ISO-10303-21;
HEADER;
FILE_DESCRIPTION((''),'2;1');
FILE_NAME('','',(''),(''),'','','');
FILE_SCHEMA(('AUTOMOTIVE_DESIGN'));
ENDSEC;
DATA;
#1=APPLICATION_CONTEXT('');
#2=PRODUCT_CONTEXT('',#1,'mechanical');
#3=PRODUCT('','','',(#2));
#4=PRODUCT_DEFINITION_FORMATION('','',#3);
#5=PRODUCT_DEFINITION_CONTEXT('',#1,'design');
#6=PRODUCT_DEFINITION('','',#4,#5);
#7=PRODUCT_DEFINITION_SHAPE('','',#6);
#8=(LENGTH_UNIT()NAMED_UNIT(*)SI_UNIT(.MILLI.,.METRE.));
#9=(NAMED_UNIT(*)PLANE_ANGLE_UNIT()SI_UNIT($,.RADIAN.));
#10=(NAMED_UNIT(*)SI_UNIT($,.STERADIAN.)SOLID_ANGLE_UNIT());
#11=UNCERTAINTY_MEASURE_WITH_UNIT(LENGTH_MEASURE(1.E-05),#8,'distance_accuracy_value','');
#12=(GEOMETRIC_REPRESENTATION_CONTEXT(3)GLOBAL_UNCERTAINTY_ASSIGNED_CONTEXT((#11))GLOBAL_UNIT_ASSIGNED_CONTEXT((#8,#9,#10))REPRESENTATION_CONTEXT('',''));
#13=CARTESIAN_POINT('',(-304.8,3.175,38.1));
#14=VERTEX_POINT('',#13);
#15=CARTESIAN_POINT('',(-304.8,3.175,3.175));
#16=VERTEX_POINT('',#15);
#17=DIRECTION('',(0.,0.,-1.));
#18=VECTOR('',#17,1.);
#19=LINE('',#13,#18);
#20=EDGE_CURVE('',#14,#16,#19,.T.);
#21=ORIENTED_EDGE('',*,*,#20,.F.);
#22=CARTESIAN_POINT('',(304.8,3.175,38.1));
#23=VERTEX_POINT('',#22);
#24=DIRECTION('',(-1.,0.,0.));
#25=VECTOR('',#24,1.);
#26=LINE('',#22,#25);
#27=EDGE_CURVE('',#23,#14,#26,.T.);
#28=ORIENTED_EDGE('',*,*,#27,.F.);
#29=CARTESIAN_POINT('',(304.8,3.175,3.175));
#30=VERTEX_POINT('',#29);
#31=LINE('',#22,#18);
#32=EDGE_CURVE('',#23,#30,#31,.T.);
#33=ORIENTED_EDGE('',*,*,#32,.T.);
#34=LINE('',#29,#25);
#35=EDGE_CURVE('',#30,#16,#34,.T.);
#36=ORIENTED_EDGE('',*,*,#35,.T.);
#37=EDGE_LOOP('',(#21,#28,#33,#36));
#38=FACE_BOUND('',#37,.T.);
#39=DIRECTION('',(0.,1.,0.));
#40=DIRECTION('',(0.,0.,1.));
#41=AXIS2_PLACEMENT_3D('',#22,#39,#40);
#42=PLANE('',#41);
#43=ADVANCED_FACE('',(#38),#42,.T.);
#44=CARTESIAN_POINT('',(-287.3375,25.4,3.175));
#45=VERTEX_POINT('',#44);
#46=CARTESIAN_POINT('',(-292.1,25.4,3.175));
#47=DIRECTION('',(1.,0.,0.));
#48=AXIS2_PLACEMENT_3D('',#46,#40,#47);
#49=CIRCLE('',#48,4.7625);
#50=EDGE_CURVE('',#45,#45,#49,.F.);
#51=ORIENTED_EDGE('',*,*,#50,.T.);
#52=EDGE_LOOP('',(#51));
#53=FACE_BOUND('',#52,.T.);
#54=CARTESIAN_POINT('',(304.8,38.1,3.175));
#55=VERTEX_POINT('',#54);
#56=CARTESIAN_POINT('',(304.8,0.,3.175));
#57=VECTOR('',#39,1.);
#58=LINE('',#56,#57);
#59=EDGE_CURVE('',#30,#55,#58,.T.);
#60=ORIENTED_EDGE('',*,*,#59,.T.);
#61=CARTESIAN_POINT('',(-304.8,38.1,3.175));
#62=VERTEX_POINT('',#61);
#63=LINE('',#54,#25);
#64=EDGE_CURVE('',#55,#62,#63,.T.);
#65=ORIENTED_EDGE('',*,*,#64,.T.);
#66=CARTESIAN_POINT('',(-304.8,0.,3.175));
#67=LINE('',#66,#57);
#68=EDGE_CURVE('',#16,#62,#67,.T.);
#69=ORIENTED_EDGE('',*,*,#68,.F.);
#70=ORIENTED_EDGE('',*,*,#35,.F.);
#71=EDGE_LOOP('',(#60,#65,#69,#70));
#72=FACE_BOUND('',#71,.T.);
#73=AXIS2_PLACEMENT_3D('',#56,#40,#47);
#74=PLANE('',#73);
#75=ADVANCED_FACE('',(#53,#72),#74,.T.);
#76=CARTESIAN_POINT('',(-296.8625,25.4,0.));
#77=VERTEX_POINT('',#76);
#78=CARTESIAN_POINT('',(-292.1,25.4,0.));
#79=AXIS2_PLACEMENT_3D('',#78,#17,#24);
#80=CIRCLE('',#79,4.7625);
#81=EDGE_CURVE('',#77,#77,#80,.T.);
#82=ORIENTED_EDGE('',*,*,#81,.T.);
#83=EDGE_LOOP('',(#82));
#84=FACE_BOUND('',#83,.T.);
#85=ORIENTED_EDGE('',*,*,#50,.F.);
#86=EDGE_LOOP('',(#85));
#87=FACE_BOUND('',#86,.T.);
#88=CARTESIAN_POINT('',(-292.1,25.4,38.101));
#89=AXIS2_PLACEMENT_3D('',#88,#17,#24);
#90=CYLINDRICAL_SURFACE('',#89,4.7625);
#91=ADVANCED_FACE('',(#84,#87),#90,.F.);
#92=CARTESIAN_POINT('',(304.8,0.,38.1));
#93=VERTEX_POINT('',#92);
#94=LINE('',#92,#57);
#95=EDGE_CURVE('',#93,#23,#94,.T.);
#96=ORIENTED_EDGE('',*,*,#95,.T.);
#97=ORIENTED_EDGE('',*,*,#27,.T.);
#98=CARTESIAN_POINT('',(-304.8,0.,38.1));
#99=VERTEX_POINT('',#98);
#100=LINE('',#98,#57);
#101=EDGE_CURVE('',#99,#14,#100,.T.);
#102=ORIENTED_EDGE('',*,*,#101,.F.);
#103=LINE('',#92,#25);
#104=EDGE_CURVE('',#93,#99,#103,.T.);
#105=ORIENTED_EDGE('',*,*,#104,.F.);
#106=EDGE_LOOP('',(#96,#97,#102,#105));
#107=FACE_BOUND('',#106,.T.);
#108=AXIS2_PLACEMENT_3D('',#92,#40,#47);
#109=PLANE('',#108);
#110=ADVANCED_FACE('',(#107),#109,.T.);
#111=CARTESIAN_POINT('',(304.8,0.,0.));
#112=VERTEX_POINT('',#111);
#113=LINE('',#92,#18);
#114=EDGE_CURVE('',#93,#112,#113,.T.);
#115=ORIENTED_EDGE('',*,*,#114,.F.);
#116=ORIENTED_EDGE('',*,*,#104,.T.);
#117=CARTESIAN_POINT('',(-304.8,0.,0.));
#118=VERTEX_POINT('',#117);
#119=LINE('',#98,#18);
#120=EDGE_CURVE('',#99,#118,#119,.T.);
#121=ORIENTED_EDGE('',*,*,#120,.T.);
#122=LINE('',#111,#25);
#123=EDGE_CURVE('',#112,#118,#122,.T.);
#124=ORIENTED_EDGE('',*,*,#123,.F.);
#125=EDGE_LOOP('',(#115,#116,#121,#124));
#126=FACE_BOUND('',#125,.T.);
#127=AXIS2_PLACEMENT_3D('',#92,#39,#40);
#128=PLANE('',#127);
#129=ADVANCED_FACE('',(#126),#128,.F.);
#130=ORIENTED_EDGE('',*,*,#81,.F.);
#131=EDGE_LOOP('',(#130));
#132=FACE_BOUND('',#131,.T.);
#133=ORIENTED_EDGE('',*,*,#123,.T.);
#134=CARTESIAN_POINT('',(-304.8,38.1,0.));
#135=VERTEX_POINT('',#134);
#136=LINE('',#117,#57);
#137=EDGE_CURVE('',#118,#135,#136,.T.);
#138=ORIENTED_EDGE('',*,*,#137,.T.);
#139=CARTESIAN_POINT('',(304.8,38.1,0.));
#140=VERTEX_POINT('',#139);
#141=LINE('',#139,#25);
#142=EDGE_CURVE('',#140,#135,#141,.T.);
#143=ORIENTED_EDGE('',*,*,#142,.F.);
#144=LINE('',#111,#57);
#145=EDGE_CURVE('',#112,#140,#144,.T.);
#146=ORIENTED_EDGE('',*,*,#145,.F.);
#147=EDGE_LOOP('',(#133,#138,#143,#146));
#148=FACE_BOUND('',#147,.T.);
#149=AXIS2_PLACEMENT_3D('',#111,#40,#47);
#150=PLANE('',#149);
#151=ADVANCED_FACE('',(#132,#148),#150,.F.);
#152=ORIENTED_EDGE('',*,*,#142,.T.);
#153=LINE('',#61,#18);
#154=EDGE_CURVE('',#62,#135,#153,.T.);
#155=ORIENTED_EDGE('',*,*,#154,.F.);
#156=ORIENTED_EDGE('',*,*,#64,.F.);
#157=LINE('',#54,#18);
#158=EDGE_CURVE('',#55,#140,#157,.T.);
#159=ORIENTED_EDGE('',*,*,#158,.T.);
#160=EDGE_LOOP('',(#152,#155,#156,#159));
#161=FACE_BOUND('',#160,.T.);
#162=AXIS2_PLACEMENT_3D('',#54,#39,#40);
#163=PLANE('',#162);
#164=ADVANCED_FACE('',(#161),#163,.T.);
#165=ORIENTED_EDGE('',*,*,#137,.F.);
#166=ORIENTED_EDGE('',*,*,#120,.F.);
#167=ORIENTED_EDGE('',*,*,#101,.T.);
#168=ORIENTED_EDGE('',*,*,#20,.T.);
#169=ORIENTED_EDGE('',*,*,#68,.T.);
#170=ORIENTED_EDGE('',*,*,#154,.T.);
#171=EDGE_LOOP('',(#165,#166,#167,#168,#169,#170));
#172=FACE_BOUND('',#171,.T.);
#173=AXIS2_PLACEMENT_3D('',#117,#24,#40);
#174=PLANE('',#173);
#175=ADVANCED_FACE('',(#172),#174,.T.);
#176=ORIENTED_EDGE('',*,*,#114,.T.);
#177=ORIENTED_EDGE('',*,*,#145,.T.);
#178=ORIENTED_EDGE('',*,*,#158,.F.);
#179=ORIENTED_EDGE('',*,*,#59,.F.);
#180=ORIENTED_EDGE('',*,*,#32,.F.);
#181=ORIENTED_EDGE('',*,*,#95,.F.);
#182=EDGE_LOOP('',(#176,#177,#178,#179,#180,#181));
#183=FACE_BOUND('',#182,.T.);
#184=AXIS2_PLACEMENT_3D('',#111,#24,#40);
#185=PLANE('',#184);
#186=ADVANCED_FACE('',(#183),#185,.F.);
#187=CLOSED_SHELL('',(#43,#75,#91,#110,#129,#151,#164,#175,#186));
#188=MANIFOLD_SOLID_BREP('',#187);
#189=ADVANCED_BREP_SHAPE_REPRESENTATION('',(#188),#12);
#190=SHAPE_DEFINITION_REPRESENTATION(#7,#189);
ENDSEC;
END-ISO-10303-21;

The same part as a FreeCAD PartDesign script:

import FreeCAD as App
import Part
import Sketcher

V = App.Vector
Q = App.Units.Quantity


def add_polygon(sketch, points):
    """Adds a closed chain of lines whose ends are joined by coincident constraints."""
    first, n = sketch.GeometryCount, len(points)
    for a, b in zip(points, points[1:] + points[:1]):
        sketch.addGeometry(Part.LineSegment(App.Vector(*a, 0), App.Vector(*b, 0)), False)
    for i in range(n):
        sketch.addConstraint(Sketcher.Constraint("Coincident", first + i, 2, first + (i + 1) % n, 1))

doc = App.newDocument("Part")
params = doc.addObject("Spreadsheet::Sheet", "Params")
for row, (alias, value) in enumerate([
    ("sketch1_width", "1.5 in"),
    ("sketch1_width2", "1.375 in"),
    ("pad1_length", "24 in"),
    ("sketch2_diameter", "0.375 in"),
], start=1):
    params.set(f"A{row}", alias)
    params.set(f"B{row}", "=" + value)
    params.setAlias(f"B{row}", alias)

body = doc.addObject("PartDesign::Body", "Body")

# Sketch on YZ plane
sketch1 = doc.addObject("Sketcher::SketchObject", "Sketch")
body.addObject(sketch1)
sketch1.AttachmentSupport = (doc.YZ_Plane, [""])
sketch1.MapMode = "FlatFace"
add_polygon(sketch1, [(0, 38.1), (0, 0), (38.1, 0), (38.1, 3.175), (3.175, 3.175), (3.175, 38.1)])  # lines 0-5
sketch1.addConstraint(Sketcher.Constraint("Vertical", 0))
sketch1.addConstraint(Sketcher.Constraint("Horizontal", 1))
sketch1.addConstraint(Sketcher.Constraint("Vertical", 2))
sketch1.addConstraint(Sketcher.Constraint("Horizontal", 3))
sketch1.addConstraint(Sketcher.Constraint("Vertical", 4))
sketch1.addConstraint(Sketcher.Constraint("Horizontal", 5))
sketch1.addConstraint(Sketcher.Constraint("Coincident", 0, 2, -1, 1))
sketch1.addConstraint(Sketcher.Constraint("Equal", 1, 0))
sketch1.addConstraint(Sketcher.Constraint("Equal", 5, 2))
sketch1.addConstraint(Sketcher.Constraint("DistanceX", 1, 1, 1, 2, Q("1.5 in")))
sketch1.addConstraint(Sketcher.Constraint("DistanceX", 3, 2, 3, 1, Q("1.375 in")))
sketch1.setExpression("Constraints[15]", "Params.sketch1_width")
sketch1.setExpression("Constraints[16]", "Params.sketch1_width2")
pad1 = doc.addObject("PartDesign::Pad", "Pad")
body.addObject(pad1)
pad1.Profile = sketch1
pad1.setExpression("Length", "Params.pad1_length")
pad1.Midplane = True

# Sketch on XY plane
sketch2 = doc.addObject("Sketcher::SketchObject", "Sketch001")
body.addObject(sketch2)
sketch2.AttachmentSupport = (doc.XY_Plane, [""])
sketch2.MapMode = "FlatFace"
sketch2.addGeometry(Part.Circle(V(-292.1, 25.4, 0), V(0, 0, 1), 4.7625), False)
sketch2.addConstraint(Sketcher.Constraint("Diameter", 0, Q("0.375 in")))
sketch2.addConstraint(Sketcher.Constraint("DistanceY", -1, 1, 0, 3, Q("1 in")))
sketch2.addConstraint(Sketcher.Constraint("DistanceX", 0, 3, -1, 1, Q("11.5 in")))
sketch2.setExpression("Constraints[0]", "Params.sketch2_diameter")
pocket1 = doc.addObject("PartDesign::Pocket", "Pocket")
body.addObject(pocket1)
pocket1.Profile = sketch2
pocket1.Type = "UpToFirst"
pocket1.Reversed = True

doc.recompute()
